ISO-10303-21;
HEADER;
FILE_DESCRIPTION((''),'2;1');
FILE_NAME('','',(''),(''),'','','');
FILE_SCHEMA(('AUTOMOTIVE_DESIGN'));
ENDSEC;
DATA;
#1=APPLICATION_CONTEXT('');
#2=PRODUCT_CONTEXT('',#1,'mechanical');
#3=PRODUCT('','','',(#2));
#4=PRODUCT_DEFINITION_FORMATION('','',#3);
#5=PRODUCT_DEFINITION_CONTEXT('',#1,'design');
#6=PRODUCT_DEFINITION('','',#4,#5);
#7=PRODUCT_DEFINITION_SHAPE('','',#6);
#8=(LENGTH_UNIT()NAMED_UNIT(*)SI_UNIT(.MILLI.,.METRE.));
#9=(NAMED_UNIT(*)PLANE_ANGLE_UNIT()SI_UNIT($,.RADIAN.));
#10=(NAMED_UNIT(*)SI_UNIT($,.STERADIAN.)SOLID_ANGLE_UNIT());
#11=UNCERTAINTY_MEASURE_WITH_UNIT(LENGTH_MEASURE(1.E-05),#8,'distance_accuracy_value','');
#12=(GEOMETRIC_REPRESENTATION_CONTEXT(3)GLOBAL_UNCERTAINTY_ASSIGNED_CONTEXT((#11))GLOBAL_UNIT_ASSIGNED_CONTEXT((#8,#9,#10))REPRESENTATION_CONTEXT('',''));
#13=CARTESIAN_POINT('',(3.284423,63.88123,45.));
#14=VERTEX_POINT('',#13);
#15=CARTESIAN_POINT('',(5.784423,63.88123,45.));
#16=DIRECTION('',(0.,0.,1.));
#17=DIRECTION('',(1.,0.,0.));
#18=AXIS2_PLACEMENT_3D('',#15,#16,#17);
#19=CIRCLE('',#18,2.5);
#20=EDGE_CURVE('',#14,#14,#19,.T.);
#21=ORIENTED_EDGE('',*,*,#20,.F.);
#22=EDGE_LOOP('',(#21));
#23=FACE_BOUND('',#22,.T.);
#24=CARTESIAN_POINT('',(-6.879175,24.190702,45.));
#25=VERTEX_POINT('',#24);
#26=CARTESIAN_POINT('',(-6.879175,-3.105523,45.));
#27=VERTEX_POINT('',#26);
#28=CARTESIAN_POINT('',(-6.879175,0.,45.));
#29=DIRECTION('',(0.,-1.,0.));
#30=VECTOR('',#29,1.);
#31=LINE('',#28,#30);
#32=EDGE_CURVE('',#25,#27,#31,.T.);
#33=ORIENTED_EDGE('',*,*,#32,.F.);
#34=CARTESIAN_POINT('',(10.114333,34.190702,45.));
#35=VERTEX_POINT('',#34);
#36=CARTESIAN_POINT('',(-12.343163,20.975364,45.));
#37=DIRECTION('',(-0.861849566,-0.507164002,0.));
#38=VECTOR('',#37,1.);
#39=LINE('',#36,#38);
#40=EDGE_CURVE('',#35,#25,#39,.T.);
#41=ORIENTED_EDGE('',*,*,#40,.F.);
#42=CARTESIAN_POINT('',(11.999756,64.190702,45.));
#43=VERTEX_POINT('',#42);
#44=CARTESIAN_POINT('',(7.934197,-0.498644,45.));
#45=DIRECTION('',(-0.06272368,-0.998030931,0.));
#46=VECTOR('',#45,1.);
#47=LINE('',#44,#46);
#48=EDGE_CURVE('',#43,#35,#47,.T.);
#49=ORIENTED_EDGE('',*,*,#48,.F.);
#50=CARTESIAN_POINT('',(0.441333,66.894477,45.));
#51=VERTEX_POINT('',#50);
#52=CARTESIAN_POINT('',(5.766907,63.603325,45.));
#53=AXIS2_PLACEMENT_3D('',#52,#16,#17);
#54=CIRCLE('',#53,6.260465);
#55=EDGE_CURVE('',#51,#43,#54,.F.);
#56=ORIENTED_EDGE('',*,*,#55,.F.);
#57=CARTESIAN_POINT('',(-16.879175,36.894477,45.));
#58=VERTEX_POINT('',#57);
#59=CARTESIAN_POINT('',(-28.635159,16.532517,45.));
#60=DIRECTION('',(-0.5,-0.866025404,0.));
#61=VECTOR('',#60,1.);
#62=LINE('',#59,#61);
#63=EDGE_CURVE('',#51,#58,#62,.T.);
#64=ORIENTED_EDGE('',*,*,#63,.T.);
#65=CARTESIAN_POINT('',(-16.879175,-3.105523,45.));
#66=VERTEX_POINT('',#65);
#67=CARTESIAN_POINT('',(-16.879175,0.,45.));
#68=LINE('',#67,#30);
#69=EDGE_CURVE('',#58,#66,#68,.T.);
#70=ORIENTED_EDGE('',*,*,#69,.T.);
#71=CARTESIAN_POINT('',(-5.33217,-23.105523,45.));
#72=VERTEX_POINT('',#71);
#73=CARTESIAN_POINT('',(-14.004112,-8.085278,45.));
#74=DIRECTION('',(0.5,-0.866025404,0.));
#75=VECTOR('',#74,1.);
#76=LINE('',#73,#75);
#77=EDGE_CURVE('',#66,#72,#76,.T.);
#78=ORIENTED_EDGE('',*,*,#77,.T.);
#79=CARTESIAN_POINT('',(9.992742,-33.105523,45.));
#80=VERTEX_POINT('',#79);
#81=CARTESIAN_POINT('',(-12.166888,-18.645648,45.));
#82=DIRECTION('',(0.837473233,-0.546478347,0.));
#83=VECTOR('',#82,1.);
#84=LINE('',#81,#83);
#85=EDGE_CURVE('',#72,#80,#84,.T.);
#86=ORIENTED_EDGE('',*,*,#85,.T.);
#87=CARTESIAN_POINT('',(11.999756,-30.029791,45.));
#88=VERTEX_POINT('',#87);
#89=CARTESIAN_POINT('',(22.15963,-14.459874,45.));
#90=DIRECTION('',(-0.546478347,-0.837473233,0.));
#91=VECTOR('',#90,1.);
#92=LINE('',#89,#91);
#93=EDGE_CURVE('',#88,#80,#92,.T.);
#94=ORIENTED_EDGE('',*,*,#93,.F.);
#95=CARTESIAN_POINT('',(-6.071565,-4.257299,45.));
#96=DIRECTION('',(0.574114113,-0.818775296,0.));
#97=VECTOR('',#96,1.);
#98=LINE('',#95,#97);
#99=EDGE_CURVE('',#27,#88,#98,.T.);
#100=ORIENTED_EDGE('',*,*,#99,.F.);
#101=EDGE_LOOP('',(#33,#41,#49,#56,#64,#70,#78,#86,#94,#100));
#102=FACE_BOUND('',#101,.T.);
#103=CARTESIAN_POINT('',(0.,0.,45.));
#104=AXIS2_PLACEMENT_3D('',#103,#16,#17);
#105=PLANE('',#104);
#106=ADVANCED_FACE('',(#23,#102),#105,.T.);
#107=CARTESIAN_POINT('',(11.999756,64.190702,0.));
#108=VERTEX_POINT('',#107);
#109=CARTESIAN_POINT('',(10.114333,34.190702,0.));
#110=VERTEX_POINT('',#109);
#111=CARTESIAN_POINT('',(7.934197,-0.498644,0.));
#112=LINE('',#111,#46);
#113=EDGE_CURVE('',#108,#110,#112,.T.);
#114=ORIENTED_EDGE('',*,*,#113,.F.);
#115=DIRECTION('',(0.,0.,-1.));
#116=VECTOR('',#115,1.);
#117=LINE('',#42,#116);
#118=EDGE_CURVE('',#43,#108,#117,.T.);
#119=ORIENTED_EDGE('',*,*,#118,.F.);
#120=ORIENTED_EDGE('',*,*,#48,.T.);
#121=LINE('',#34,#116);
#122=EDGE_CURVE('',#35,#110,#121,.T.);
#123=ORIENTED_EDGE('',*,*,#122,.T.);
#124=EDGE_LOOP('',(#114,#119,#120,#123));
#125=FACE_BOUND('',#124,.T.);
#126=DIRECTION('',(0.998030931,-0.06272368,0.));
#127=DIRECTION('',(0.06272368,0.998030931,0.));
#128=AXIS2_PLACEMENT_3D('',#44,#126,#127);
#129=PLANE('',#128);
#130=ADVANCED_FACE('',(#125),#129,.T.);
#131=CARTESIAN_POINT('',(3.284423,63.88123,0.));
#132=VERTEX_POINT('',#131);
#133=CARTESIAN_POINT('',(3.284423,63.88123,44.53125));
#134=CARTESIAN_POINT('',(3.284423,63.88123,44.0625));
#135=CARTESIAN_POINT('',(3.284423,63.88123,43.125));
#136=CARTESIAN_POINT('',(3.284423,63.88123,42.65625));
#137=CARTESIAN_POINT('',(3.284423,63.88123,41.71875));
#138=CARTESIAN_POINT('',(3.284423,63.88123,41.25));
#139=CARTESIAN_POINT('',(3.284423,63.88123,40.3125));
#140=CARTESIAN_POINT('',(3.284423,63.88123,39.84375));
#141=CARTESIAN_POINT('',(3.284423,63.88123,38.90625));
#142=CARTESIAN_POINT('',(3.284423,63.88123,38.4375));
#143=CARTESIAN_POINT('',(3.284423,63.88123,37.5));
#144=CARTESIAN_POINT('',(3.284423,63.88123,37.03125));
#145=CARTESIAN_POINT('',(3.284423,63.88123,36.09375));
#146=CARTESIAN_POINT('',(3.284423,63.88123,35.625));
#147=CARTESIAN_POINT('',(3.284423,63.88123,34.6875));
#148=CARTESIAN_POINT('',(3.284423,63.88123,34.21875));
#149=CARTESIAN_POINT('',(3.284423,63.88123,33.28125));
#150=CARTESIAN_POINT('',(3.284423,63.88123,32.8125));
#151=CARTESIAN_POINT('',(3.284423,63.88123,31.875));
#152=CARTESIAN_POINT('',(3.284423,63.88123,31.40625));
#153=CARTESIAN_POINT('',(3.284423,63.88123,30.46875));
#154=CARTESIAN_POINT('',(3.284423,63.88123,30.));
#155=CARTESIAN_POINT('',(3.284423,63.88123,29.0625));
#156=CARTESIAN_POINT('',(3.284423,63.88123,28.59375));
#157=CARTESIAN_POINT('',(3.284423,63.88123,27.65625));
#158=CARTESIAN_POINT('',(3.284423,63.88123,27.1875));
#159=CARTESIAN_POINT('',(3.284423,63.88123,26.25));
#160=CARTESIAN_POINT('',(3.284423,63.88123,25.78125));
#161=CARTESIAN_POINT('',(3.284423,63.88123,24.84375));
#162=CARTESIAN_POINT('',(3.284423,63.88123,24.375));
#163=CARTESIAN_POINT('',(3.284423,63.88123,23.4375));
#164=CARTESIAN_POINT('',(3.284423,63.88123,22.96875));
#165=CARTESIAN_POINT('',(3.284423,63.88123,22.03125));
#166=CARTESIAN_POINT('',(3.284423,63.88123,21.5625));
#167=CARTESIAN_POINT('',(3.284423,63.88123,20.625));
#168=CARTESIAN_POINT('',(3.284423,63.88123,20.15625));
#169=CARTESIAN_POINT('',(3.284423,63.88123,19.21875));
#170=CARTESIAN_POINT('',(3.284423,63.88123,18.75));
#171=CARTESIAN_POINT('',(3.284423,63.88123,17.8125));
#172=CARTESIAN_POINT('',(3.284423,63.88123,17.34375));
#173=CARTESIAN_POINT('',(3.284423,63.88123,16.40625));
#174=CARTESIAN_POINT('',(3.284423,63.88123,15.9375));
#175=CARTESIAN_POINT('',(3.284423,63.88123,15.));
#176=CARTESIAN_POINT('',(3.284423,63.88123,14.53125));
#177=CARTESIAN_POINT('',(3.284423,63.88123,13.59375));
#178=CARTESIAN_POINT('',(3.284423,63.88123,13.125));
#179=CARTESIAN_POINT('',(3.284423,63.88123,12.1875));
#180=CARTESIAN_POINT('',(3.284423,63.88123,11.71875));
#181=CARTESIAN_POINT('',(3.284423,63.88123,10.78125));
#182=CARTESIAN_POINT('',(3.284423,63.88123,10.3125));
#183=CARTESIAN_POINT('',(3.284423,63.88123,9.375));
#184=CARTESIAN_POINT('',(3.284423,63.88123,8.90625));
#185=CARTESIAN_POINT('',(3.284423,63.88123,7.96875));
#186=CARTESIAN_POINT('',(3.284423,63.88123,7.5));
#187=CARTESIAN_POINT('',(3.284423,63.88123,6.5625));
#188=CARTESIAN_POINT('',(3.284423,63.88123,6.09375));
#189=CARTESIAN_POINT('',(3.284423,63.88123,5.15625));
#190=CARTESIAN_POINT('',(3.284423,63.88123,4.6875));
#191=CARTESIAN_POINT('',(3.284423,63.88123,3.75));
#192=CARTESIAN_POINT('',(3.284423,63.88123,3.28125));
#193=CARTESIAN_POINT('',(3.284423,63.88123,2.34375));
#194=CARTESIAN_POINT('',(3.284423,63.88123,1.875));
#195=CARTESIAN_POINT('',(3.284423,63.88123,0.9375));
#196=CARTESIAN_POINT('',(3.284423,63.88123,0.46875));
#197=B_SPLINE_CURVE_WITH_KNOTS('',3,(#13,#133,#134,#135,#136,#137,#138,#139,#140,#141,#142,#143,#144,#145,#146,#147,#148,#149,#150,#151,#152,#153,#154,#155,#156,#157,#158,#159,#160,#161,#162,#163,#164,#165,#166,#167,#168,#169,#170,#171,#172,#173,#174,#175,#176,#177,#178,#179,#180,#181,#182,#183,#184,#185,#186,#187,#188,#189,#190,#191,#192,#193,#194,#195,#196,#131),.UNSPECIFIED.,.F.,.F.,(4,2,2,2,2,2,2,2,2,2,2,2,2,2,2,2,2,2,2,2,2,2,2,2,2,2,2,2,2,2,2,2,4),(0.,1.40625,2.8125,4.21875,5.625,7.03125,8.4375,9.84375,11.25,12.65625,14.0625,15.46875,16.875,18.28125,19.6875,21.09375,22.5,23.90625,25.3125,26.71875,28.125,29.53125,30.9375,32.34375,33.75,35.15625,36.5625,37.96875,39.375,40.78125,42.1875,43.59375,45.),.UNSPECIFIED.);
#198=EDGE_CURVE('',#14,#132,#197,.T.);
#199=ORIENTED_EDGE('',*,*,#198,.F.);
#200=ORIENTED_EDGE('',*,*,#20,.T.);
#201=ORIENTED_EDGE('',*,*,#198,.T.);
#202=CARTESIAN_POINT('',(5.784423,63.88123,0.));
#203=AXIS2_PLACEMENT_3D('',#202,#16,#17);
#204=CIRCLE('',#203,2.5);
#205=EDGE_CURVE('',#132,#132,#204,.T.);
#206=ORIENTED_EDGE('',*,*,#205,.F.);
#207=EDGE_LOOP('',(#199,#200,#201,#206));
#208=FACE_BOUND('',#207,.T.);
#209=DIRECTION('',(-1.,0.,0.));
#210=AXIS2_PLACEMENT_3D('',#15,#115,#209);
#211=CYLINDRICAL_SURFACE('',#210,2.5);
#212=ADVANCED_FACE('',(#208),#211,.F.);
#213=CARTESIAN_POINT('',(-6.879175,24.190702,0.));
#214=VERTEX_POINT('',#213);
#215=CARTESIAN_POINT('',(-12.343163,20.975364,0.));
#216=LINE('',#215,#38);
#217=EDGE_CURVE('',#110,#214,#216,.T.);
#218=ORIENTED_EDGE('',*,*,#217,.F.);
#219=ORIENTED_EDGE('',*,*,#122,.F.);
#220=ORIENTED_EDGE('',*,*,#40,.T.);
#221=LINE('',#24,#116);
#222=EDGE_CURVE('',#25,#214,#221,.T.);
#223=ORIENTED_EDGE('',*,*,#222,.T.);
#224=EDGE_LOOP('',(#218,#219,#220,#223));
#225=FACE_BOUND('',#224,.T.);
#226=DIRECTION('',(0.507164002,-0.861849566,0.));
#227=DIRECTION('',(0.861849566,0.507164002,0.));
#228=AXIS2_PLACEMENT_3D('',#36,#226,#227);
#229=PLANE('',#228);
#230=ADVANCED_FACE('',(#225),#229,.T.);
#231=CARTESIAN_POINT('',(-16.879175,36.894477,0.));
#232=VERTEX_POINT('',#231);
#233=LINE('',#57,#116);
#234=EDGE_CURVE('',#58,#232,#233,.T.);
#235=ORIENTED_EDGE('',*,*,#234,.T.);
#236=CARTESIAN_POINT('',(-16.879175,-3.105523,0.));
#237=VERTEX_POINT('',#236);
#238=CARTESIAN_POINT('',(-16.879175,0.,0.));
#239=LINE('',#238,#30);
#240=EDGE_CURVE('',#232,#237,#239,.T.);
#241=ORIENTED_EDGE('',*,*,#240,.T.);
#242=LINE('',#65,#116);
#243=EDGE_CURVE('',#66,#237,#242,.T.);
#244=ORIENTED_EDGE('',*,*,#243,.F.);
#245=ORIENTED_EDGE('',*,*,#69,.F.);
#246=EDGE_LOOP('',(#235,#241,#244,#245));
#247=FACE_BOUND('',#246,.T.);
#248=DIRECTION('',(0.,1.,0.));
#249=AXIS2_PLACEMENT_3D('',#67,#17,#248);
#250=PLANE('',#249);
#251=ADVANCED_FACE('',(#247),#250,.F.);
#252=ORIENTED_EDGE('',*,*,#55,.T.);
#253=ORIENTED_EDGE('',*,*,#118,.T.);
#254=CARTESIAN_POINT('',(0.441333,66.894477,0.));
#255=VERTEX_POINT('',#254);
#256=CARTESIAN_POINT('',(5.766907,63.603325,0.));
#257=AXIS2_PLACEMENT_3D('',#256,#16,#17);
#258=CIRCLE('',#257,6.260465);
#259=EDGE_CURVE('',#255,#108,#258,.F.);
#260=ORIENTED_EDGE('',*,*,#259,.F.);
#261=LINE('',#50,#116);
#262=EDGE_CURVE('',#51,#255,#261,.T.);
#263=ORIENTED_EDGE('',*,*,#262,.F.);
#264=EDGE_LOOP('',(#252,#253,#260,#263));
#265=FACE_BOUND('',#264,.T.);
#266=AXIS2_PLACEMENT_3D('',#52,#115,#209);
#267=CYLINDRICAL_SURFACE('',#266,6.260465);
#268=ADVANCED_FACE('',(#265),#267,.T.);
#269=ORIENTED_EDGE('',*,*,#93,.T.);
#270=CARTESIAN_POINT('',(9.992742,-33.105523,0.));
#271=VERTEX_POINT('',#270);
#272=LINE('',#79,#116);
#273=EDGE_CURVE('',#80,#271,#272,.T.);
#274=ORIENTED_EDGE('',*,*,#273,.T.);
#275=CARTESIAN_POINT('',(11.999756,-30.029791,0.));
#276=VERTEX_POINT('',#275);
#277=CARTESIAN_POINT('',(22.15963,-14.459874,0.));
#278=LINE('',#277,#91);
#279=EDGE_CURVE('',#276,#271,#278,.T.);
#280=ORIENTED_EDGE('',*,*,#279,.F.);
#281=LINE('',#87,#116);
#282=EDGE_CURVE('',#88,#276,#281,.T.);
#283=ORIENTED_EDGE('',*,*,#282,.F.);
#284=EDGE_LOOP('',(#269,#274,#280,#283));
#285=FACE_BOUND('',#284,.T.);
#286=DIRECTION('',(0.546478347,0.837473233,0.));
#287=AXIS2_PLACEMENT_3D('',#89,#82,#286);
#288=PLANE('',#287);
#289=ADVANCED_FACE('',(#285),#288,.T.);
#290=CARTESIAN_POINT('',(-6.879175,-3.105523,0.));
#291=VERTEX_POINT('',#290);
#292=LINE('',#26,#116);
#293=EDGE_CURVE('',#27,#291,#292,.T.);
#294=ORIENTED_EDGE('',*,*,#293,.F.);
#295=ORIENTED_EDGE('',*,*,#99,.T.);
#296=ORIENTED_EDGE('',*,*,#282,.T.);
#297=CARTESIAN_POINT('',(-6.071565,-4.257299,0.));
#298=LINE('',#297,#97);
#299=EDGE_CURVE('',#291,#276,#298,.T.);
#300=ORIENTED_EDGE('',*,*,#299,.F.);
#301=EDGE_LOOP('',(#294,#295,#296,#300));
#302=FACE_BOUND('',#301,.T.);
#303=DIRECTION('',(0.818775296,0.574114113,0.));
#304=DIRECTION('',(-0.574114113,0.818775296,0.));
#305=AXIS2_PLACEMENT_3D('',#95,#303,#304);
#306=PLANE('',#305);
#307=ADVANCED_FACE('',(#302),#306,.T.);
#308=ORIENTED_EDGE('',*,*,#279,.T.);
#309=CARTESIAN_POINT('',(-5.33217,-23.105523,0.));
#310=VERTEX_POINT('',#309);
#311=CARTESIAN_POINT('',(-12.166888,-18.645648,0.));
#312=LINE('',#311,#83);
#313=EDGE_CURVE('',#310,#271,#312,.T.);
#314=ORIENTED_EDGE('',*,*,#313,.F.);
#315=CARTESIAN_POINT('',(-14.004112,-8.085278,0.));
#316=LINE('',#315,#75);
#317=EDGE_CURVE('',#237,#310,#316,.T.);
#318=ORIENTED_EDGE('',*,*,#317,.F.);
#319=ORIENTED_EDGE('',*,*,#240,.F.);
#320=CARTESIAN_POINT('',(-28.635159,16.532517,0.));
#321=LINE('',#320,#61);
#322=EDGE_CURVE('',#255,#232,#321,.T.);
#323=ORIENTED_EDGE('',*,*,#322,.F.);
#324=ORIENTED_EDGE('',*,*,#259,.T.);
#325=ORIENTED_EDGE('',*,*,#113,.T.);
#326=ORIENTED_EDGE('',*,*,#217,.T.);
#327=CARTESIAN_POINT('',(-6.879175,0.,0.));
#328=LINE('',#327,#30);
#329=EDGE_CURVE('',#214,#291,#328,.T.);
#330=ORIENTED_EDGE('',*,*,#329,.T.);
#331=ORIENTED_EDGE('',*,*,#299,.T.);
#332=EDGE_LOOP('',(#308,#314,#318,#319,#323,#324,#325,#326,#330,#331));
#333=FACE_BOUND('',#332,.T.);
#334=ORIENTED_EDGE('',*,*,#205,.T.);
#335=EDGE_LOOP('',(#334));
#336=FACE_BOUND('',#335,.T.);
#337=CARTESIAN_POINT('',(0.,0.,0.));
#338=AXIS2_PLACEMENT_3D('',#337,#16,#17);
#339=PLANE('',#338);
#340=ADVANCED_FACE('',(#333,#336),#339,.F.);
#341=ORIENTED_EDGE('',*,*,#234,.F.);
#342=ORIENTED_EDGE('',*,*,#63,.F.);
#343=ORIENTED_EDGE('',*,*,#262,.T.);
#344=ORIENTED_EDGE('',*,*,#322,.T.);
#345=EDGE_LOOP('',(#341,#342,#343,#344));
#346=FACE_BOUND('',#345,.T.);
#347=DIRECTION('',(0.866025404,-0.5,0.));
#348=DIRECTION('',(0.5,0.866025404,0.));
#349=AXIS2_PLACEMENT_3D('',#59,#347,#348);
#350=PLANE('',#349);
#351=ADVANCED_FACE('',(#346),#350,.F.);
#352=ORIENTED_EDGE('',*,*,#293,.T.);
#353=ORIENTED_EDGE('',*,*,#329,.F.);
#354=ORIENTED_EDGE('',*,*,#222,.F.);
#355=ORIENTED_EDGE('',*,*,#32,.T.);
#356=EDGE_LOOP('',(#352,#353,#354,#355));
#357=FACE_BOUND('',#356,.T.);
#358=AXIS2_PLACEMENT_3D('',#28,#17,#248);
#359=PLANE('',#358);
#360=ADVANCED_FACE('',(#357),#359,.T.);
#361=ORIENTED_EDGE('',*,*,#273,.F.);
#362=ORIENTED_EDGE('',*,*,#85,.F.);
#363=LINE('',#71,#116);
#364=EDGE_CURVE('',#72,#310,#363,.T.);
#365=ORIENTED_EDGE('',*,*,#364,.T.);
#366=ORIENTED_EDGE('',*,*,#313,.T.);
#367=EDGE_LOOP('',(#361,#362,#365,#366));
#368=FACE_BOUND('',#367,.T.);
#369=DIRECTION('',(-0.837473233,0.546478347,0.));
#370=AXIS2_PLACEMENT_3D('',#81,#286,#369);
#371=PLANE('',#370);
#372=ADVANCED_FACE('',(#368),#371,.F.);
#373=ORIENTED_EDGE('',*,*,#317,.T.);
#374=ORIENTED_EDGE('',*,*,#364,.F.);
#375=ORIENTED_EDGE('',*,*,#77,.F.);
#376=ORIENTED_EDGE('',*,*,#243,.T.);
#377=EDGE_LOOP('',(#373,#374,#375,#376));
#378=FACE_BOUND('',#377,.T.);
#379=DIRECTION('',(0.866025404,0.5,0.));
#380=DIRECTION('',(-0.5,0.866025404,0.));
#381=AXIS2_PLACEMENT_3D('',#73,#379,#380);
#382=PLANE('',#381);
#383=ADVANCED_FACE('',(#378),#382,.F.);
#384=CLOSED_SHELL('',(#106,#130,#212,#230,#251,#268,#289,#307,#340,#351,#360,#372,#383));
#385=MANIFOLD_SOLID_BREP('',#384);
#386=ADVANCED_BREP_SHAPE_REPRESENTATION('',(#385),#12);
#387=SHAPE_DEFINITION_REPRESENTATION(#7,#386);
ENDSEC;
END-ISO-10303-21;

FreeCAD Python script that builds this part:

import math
import FreeCAD as App
import Part
import Sketcher
Q = App.Units.Quantity

doc = App.newDocument("Part")
params = doc.addObject("Spreadsheet::Sheet", "Params")
for row, (alias, value) in enumerate([
    ("sketch1_height", "40 mm"),
    ("pad1_length", "45 mm"),
    ("sketch2_diameter", "5 mm"),
], start=1):
    params.set(f"A{row}", alias)
    params.set(f"B{row}", "=" + value)
    params.setAlias(f"B{row}", alias)

body = doc.addObject("PartDesign::Body", "Body")

sketch1 = doc.addObject("Sketcher::SketchObject", "Sketch")
body.addObject(sketch1)
sketch1.AttachmentSupport = (doc.XY_Plane, [""])
sketch1.MapMode = "FlatFace"
sketch1.addGeometry(Part.ArcOfCircle(Part.Circle(App.Vector(5.8, 63.6, 0), App.Vector(0, 0, 1), 6.3), math.radians(5), math.radians(148)), False)
sketch1.addGeometry(Part.LineSegment(App.Vector(0.4, 66.9, 0), App.Vector(-16.9, 36.9, 0)), False)
sketch1.addGeometry(Part.LineSegment(App.Vector(-16.9, 36.9, 0), App.Vector(-16.9, -3.1, 0)), False)
sketch1.addGeometry(Part.LineSegment(App.Vector(-16.9, -3.1, 0), App.Vector(-5.3, -23.1, 0)), False)
sketch1.addGeometry(Part.LineSegment(App.Vector(-5.3, -23.1, 0), App.Vector(10, -33.1, 0)), False)
sketch1.addGeometry(Part.LineSegment(App.Vector(10, -33.1, 0), App.Vector(12, -30, 0)), False)
sketch1.addGeometry(Part.LineSegment(App.Vector(12, -30, 0), App.Vector(-6.9, -3.1, 0)), False)
sketch1.addGeometry(Part.LineSegment(App.Vector(-6.9, -3.1, 0), App.Vector(-6.9, 24.2, 0)), False)
sketch1.addGeometry(Part.LineSegment(App.Vector(-6.9, 24.2, 0), App.Vector(10.1, 34.2, 0)), False)
sketch1.addGeometry(Part.LineSegment(App.Vector(10.1, 34.2, 0), App.Vector(12, 64.2, 0)), False)
sketch1.addConstraint(Sketcher.Constraint("Coincident", 0, 2, 1, 1))
sketch1.addConstraint(Sketcher.Constraint("Coincident", 1, 2, 2, 1))
sketch1.addConstraint(Sketcher.Constraint("Coincident", 2, 2, 3, 1))
sketch1.addConstraint(Sketcher.Constraint("Coincident", 3, 2, 4, 1))
sketch1.addConstraint(Sketcher.Constraint("Coincident", 4, 2, 5, 1))
sketch1.addConstraint(Sketcher.Constraint("Coincident", 5, 2, 6, 1))
sketch1.addConstraint(Sketcher.Constraint("Coincident", 6, 2, 7, 1))
sketch1.addConstraint(Sketcher.Constraint("Coincident", 7, 2, 8, 1))
sketch1.addConstraint(Sketcher.Constraint("Coincident", 8, 2, 9, 1))
sketch1.addConstraint(Sketcher.Constraint("Coincident", 9, 2, 0, 1))
sketch1.addConstraint(Sketcher.Constraint("Vertical", 2))
sketch1.addConstraint(Sketcher.Constraint("Vertical", 7))
sketch1.addConstraint(Sketcher.Constraint("Perpendicular", 4, 5))
sketch1.addConstraint(Sketcher.Constraint("Horizontal", 2, 2, 6, 2))
sketch1.addConstraint(Sketcher.Constraint("Vertical", 5, 2, 9, 2))
sketch1.addConstraint(Sketcher.Constraint("DistanceY", 2, 2, 2, 1, Q("40 mm")))
sketch1.addConstraint(Sketcher.Constraint("Angle", 1, Q("-120 deg")))
sketch1.addConstraint(Sketcher.Constraint("Angle", 3, Q("-60 deg")))
sketch1.addConstraint(Sketcher.Constraint("DistanceY", 1, 2, 0, 2, Q("30 mm")))
sketch1.addConstraint(Sketcher.Constraint("DistanceY", 3, 2, 2, 2, Q("20 mm")))
sketch1.addConstraint(Sketcher.Constraint("DistanceY", 4, 2, 3, 2, Q("10 mm")))
sketch1.addConstraint(Sketcher.Constraint("DistanceX", 2, 2, 6, 2, Q("10 mm")))
sketch1.addConstraint(Sketcher.Constraint("DistanceY", 7, 2, 8, 2, Q("10 mm")))
sketch1.addConstraint(Sketcher.Constraint("DistanceY", 8, 2, 9, 2, Q("30 mm")))
sketch1.addConstraint(Sketcher.Constraint("Radius", 0, Q("6.260465 mm")))
sketch1.addConstraint(Sketcher.Constraint("DistanceX", 0, 2, 8, 2, Q("9.673 mm")))
sketch1.addConstraint(Sketcher.Constraint("Distance", 9, Q("30.059189 mm")))
sketch1.addConstraint(Sketcher.Constraint("DistanceY", 7, 1, 7, 2, Q("27.296225 mm")))
sketch1.addConstraint(Sketcher.Constraint("DistanceX", 3, 2, -1, 1, Q("5.33217 mm")))
sketch1.addConstraint(Sketcher.Constraint("DistanceX", -1, 1, 4, 2, Q("9.992742 mm")))
sketch1.addConstraint(Sketcher.Constraint("DistanceY", 5, 2, -1, 1, Q("30.029791 mm")))
sketch1.setExpression("Constraints[15]", "Params.sketch1_height")
pad1 = doc.addObject("PartDesign::Pad", "Pad")
body.addObject(pad1)
pad1.Profile = sketch1
pad1.setExpression("Length", "Params.pad1_length")

sketch2 = doc.addObject("Sketcher::SketchObject", "Sketch001")
body.addObject(sketch2)
sketch2.AttachmentSupport = (doc.XY_Plane, [""])
sketch2.MapMode = "FlatFace"
sketch2.addGeometry(Part.Circle(App.Vector(5.8, 63.9, 0), App.Vector(0, 0, 1), 2.5), False)
sketch2.addConstraint(Sketcher.Constraint("Diameter", 0, Q("5 mm")))
sketch2.addConstraint(Sketcher.Constraint("DistanceY", -1, 1, 0, 3, Q("63.88123 mm")))
sketch2.addConstraint(Sketcher.Constraint("DistanceX", -1, 1, 0, 3, Q("5.784423 mm")))
sketch2.setExpression("Constraints[0]", "Params.sketch2_diameter")
pocket1 = doc.addObject("PartDesign::Pocket", "Pocket")
body.addObject(pocket1)
pocket1.Profile = sketch2
pocket1.Type = "ThroughAll"
pocket1.Reversed = True

doc.recompute()
